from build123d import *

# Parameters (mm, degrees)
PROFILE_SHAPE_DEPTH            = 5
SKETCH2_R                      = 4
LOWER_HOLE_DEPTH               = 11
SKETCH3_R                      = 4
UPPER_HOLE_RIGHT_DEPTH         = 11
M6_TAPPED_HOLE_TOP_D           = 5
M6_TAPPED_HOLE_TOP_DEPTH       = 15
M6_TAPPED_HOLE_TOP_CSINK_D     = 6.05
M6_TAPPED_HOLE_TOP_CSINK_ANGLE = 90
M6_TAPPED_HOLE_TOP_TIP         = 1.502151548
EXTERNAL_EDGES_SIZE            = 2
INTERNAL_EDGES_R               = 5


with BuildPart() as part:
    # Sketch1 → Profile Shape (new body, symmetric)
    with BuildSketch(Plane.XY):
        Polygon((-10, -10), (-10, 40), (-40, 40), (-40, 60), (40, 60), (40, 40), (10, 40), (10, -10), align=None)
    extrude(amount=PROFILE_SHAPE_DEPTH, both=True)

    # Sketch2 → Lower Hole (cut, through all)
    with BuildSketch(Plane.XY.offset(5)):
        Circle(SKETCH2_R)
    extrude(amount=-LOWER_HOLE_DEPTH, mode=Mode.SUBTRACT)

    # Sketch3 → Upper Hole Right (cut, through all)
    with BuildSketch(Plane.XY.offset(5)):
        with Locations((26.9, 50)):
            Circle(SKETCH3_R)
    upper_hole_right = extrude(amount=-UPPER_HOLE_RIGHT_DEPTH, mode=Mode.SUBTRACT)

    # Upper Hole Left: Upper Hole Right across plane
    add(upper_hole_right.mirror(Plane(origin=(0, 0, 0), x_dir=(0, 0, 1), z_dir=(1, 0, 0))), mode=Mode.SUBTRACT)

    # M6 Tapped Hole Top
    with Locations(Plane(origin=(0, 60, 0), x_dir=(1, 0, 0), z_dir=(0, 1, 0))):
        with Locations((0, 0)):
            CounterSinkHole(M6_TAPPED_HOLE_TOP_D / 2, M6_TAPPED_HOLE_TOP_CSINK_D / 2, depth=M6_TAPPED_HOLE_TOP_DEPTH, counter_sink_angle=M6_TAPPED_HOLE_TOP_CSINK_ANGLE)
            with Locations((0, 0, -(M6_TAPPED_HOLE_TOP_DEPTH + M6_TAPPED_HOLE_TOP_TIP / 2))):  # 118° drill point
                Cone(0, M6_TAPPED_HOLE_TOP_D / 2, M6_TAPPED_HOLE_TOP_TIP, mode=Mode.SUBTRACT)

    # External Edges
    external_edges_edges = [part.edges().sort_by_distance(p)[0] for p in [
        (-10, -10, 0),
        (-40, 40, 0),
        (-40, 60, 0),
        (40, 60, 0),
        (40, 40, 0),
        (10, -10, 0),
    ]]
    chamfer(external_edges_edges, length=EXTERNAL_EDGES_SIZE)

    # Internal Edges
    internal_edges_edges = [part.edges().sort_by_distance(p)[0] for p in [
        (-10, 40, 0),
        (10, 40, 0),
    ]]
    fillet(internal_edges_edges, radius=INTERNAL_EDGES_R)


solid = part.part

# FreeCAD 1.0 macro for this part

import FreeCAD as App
import Part
import Sketcher

V = App.Vector


def edges_at(feature, points):
    """Names of the edges that pass closest to the given points."""
    edges = feature.Shape.Edges
    near = lambda p: min(range(len(edges)), key=lambda i: edges[i].distToShape(Part.Vertex(*p))[0])
    return sorted({f"Edge{near(p) + 1}" for p in points})

doc = App.newDocument("Part")
body = doc.addObject("PartDesign::Body", "Body")

# Sketch on XY plane
sketch1 = doc.addObject("Sketcher::SketchObject", "Sketch")
body.addObject(sketch1)
sketch1.AttachmentSupport = (doc.XY_Plane, [""])
sketch1.MapMode = "FlatFace"
sketch1.addGeometry([
    Part.LineSegment(V(-10, 40, 0), V(-10, -10, 0)),  # 0
    Part.LineSegment(V(-10, -10, 0), V(10, -10, 0)),  # 1
    Part.LineSegment(V(10, -10, 0), V(10, 40, 0)),  # 2
    Part.LineSegment(V(10, 40, 0), V(40, 40, 0)),  # 3
    Part.LineSegment(V(40, 40, 0), V(40, 60, 0)),  # 4
    Part.LineSegment(V(40, 60, 0), V(-40, 60, 0)),  # 5
    Part.LineSegment(V(-40, 60, 0), V(-40, 40, 0)),  # 6
    Part.LineSegment(V(-40, 40, 0), V(-10, 40, 0)),  # 7
], False)
sketch1.addConstraint([
    Sketcher.Constraint("Coincident", 0, 2, 1, 1),
    Sketcher.Constraint("Coincident", 1, 2, 2, 1),
    Sketcher.Constraint("Coincident", 2, 2, 3, 1),
    Sketcher.Constraint("Coincident", 3, 2, 4, 1),
    Sketcher.Constraint("Coincident", 4, 2, 5, 1),
    Sketcher.Constraint("Coincident", 5, 2, 6, 1),
    Sketcher.Constraint("Coincident", 6, 2, 7, 1),
    Sketcher.Constraint("Coincident", 7, 2, 0, 1),
    Sketcher.Constraint("Vertical", 0),
    Sketcher.Constraint("Horizontal", 1),
    Sketcher.Constraint("Vertical", 2),
    Sketcher.Constraint("Horizontal", 3),
    Sketcher.Constraint("Vertical", 4),
    Sketcher.Constraint("Horizontal", 5),
    Sketcher.Constraint("Vertical", 6),
    Sketcher.Constraint("Horizontal", 7),
    Sketcher.Constraint("Symmetric", 3, 2, 6, 2, -2),
    Sketcher.Constraint("Equal", 3, 7),
    Sketcher.Constraint("Equal", 1, 4),
    Sketcher.Constraint("DistanceX", 1, 1, 1, 2, 20.0),
    Sketcher.Constraint("DistanceX", 3, 1, 3, 2, 30.0),
    Sketcher.Constraint("DistanceY", 0, 2, 0, 1, 50.0),
    Sketcher.Constraint("DistanceY", 0, 2, -1, 1, 10.0),
])
pad1 = doc.addObject("PartDesign::Pad", "Pad")
body.addObject(pad1)
pad1.Profile = sketch1
pad1.Length = 10
pad1.Midplane = True

# Sketch on XY plane
sketch2 = doc.addObject("Sketcher::SketchObject", "Sketch001")
body.addObject(sketch2)
sketch2.AttachmentSupport = (doc.XY_Plane, [""])
sketch2.MapMode = "FlatFace"
sketch2.AttachmentOffset = App.Placement(V(0, 0, 5), App.Rotation())
sketch2.addGeometry(Part.Circle(V(0, 0, 0), V(0, 0, 1), 4), False)
sketch2.addConstraint([
    Sketcher.Constraint("Coincident", 0, 3, -1, 1),
    Sketcher.Constraint("Diameter", 0, 8.0),
])
pocket1 = doc.addObject("PartDesign::Pocket", "Pocket")
body.addObject(pocket1)
pocket1.Profile = sketch2
pocket1.Type = "ThroughAll"

# Sketch on XY plane
sketch3 = doc.addObject("Sketcher::SketchObject", "Sketch002")
body.addObject(sketch3)
sketch3.AttachmentSupport = (doc.XY_Plane, [""])
sketch3.MapMode = "FlatFace"
sketch3.AttachmentOffset = App.Placement(V(0, 0, 5), App.Rotation())
sketch3.addGeometry(Part.Circle(V(26.9, 50, 0), V(0, 0, 1), 4), False)
sketch3.addConstraint([
    Sketcher.Constraint("Diameter", 0, 8.0),
    Sketcher.Constraint("DistanceY", -1, 1, 0, 3, 50.0),
    Sketcher.Constraint("DistanceX", -1, 1, 0, 3, 26.9),
])
pocket2 = doc.addObject("PartDesign::Pocket", "Pocket001")
body.addObject(pocket2)
pocket2.Profile = sketch3
pocket2.Type = "ThroughAll"
doc.recompute()

mirrored = doc.addObject("PartDesign::Mirrored", "Mirrored")
body.addObject(mirrored)
mirrored.Originals = [pocket2]
mirrored.MirrorPlane = (doc.YZ_Plane, [""])
body.Tip = mirrored

# Sketch on XZ plane
sketch4 = doc.addObject("Sketcher::SketchObject", "Sketch003")
body.addObject(sketch4)
sketch4.AttachmentSupport = (doc.XZ_Plane, [""])
sketch4.MapMode = "FlatFace"
sketch4.AttachmentOffset = App.Placement(V(0, 0, -60), App.Rotation())
sketch4.addGeometry(Part.Circle(V(0, 0, 0), V(0, 0, 1), 2.5), False)
sketch4.addConstraint([
    Sketcher.Constraint("Coincident", 0, 3, -1, 1),
    Sketcher.Constraint("Diameter", 0, 5.0),
])
doc.recompute()
hole = doc.addObject("PartDesign::Hole", "Hole")
body.addObject(hole)
hole.Profile = sketch4
hole.ThreadType = "None"
hole.Diameter = 5
hole.DepthType = "Dimension"
hole.Depth = 15
hole.DrillPoint = "Angled"
hole.DrillPointAngle = 118
hole.HoleCutType = "Countersink"
hole.HoleCutDiameter = 6.05
hole.HoleCutCountersinkAngle = 90
hole.Reversed = True
doc.recompute()

chamfer = doc.addObject("PartDesign::Chamfer", "Chamfer")
body.addObject(chamfer)
chamfer.Base = (hole, edges_at(hole, [
    (-10, -10, 0),
    (-40, 40, 0),
    (-40, 60, 0),
    (40, 60, 0),
    (40, 40, 0),
    (10, -10, 0),
]))
chamfer.Size = 2
doc.recompute()

fillet = doc.addObject("PartDesign::Fillet", "Fillet")
body.addObject(fillet)
fillet.Base = (chamfer, edges_at(chamfer, [(-10, 40, 0), (10, 40, 0)]))
fillet.Radius = 5

doc.recompute()
